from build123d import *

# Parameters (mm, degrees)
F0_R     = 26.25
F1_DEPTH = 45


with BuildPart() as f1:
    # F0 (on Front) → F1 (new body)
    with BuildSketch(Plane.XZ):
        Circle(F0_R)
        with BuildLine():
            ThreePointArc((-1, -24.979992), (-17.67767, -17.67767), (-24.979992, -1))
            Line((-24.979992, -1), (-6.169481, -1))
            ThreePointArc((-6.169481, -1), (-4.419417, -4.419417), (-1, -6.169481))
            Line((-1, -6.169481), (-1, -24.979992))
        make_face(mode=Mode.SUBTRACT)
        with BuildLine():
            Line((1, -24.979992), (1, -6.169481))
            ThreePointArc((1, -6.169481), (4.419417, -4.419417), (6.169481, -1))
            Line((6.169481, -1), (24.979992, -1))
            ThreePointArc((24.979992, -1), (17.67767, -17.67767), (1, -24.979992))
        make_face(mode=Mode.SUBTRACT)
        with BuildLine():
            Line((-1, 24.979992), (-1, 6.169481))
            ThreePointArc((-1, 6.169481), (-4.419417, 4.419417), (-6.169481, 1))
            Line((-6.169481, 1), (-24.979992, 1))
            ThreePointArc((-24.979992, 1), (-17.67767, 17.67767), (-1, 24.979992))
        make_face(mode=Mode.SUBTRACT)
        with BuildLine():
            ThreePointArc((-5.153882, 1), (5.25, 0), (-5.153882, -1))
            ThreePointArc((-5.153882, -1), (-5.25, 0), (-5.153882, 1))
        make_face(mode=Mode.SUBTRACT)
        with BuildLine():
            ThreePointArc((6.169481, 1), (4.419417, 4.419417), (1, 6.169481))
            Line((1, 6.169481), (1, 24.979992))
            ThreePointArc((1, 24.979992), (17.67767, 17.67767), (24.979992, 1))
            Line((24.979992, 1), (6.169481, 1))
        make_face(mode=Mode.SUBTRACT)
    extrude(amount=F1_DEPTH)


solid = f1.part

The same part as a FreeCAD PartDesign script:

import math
import FreeCAD as App
import Part
import Sketcher
Q = App.Units.Quantity

doc = App.newDocument("Part")
body = doc.addObject("PartDesign::Body", "Body")

sketch1 = doc.addObject("Sketcher::SketchObject", "Sketch")
body.addObject(sketch1)
sketch1.AttachmentSupport = (doc.XZ_Plane, [""])
sketch1.MapMode = "FlatFace"
sketch1.addGeometry([
    Part.Circle(App.Vector(0, 0, 0), App.Vector(0, 0, 1), 26.25),
    Part.LineSegment(App.Vector(-1, -6.169481, 0), App.Vector(-1, -24.979992, 0)),
    Part.ArcOfCircle(Part.Circle(App.Vector(-0.000002, -0.000002, 0), App.Vector(0, 0, 1), 24.999998), math.radians(-177.707561), math.radians(-92.292439)),
    Part.LineSegment(App.Vector(-24.979992, -1, 0), App.Vector(-6.169481, -1, 0)),
    Part.ArcOfCircle(Part.Circle(App.Vector(0.000001, 0.000001, 0), App.Vector(0, 0, 1), 6.250001), math.radians(-170.793097), math.radians(-99.206903)),
    Part.ArcOfCircle(Part.Circle(App.Vector(0.000002, -0.000002, 0), App.Vector(0, 0, 1), 24.999998), math.radians(-87.707561), math.radians(-2.292439)),
    Part.LineSegment(App.Vector(1, -24.979992, 0), App.Vector(1, -6.169481, 0)),
    Part.ArcOfCircle(Part.Circle(App.Vector(-0.000001, 0.000001, 0), App.Vector(0, 0, 1), 6.250001), math.radians(-80.793097), math.radians(-9.206903)),
    Part.LineSegment(App.Vector(6.169481, -1, 0), App.Vector(24.979992, -1, 0)),
    Part.ArcOfCircle(Part.Circle(App.Vector(-0.000002, 0, 0), App.Vector(0, 0, 1), 5.249998), math.radians(169.019421), math.radians(190.980579)),
    Part.ArcOfCircle(Part.Circle(App.Vector(0, 0, 0), App.Vector(0, 0, 1), 5.25), math.radians(-169.019425), math.radians(169.019425)),
    Part.ArcOfCircle(Part.Circle(App.Vector(-0.000002, 0.000002, 0), App.Vector(0, 0, 1), 24.999998), math.radians(92.292439), math.radians(177.707561)),
    Part.LineSegment(App.Vector(-1, 24.979992, 0), App.Vector(-1, 6.169481, 0)),
    Part.ArcOfCircle(Part.Circle(App.Vector(0.000001, -0.000001, 0), App.Vector(0, 0, 1), 6.250001), math.radians(99.206903), math.radians(170.793097)),
    Part.LineSegment(App.Vector(-6.169481, 1, 0), App.Vector(-24.979992, 1, 0)),
    Part.LineSegment(App.Vector(24.979992, 1, 0), App.Vector(6.169481, 1, 0)),
    Part.ArcOfCircle(Part.Circle(App.Vector(-0.000001, -0.000001, 0), App.Vector(0, 0, 1), 6.250001), math.radians(9.206903), math.radians(80.793097)),
    Part.LineSegment(App.Vector(1, 6.169481, 0), App.Vector(1, 24.979992, 0)),
    Part.ArcOfCircle(Part.Circle(App.Vector(0.000002, 0.000002, 0), App.Vector(0, 0, 1), 24.999998), math.radians(2.292439), math.radians(87.707561)),
], False)
sketch1.addConstraint([
    Sketcher.Constraint("Coincident", 1, 2, 2, 2),
    Sketcher.Constraint("Coincident", 2, 1, 3, 1),
    Sketcher.Constraint("Coincident", 3, 2, 4, 1),
    Sketcher.Constraint("Coincident", 4, 2, 1, 1),
    Sketcher.Constraint("Coincident", 5, 1, 6, 1),
    Sketcher.Constraint("Coincident", 6, 2, 7, 1),
    Sketcher.Constraint("Coincident", 7, 2, 8, 1),
    Sketcher.Constraint("Coincident", 8, 2, 5, 2),
    Sketcher.Constraint("Tangent", 9, 1, 10, 2),
    Sketcher.Constraint("Coincident", 10, 1, 9, 2),
    Sketcher.Constraint("Coincident", 11, 1, 12, 1),
    Sketcher.Constraint("Coincident", 12, 2, 13, 1),
    Sketcher.Constraint("Coincident", 13, 2, 14, 1),
    Sketcher.Constraint("Coincident", 14, 2, 11, 2),
    Sketcher.Constraint("Coincident", 15, 2, 16, 1),
    Sketcher.Constraint("Coincident", 16, 2, 17, 1),
    Sketcher.Constraint("Coincident", 17, 2, 18, 2),
    Sketcher.Constraint("Coincident", 18, 1, 15, 1),
    Sketcher.Constraint("Vertical", 1),
    Sketcher.Constraint("Horizontal", 3),
    Sketcher.Constraint("Vertical", 6),
    Sketcher.Constraint("Horizontal", 8),
    Sketcher.Constraint("Vertical", 12),
    Sketcher.Constraint("Horizontal", 14),
    Sketcher.Constraint("Horizontal", 15),
    Sketcher.Constraint("Vertical", 17),
    Sketcher.Constraint("Coincident", 0, 3, -1, 1),
    Sketcher.Constraint("Coincident", 2, 3, -1, 1),
    Sketcher.Constraint("Coincident", 4, 3, -1, 1),
    Sketcher.Constraint("Coincident", 5, 3, -1, 1),
    Sketcher.Constraint("Coincident", 7, 3, -1, 1),
    Sketcher.Constraint("Coincident", 9, 3, -1, 1),
    Sketcher.Constraint("Coincident", 11, 3, -1, 1),
    Sketcher.Constraint("Coincident", 13, 3, -1, 1),
    Sketcher.Constraint("Coincident", 16, 3, -1, 1),
    Sketcher.Constraint("Coincident", 18, 3, -1, 1),
    Sketcher.Constraint("Equal", 2, 5),
    Sketcher.Constraint("Equal", 4, 7),
    Sketcher.Constraint("Equal", 5, 11),
    Sketcher.Constraint("Equal", 7, 13),
    Sketcher.Constraint("Equal", 13, 16),
    Sketcher.Constraint("Equal", 11, 18),
    Sketcher.Constraint("Horizontal", 1, 2, 5, 1),
    Sketcher.Constraint("Horizontal", 3, 2, 7, 2),
    Sketcher.Constraint("Horizontal", 8, 2, 10, 1),
    Sketcher.Constraint("Horizontal", 9, 1, 13, 2),
    Sketcher.Constraint("Horizontal", 14, 2, 15, 2),
    Sketcher.Constraint("Horizontal", 12, 2, 16, 2),
    Sketcher.Constraint("Vertical", 9, 1, 10, 1),
    Sketcher.Constraint("Vertical", 4, 2, 11, 1),
    Sketcher.Constraint("Equal", 15, 1),
    Sketcher.Constraint("Radius", 2, Q("24.999998 mm")),
    Sketcher.Constraint("Diameter", 0, Q("52.5 mm")),
    Sketcher.Constraint("Radius", 4, Q("6.250001 mm")),
    Sketcher.Constraint("Radius", 9, Q("5.249998 mm")),
    Sketcher.Constraint("DistanceX", 1, 2, -1, 1, Q("1 mm")),
])
pad1 = doc.addObject("PartDesign::Pad", "Pad")
body.addObject(pad1)
pad1.Profile = sketch1
pad1.Length = 45

doc.recompute()
